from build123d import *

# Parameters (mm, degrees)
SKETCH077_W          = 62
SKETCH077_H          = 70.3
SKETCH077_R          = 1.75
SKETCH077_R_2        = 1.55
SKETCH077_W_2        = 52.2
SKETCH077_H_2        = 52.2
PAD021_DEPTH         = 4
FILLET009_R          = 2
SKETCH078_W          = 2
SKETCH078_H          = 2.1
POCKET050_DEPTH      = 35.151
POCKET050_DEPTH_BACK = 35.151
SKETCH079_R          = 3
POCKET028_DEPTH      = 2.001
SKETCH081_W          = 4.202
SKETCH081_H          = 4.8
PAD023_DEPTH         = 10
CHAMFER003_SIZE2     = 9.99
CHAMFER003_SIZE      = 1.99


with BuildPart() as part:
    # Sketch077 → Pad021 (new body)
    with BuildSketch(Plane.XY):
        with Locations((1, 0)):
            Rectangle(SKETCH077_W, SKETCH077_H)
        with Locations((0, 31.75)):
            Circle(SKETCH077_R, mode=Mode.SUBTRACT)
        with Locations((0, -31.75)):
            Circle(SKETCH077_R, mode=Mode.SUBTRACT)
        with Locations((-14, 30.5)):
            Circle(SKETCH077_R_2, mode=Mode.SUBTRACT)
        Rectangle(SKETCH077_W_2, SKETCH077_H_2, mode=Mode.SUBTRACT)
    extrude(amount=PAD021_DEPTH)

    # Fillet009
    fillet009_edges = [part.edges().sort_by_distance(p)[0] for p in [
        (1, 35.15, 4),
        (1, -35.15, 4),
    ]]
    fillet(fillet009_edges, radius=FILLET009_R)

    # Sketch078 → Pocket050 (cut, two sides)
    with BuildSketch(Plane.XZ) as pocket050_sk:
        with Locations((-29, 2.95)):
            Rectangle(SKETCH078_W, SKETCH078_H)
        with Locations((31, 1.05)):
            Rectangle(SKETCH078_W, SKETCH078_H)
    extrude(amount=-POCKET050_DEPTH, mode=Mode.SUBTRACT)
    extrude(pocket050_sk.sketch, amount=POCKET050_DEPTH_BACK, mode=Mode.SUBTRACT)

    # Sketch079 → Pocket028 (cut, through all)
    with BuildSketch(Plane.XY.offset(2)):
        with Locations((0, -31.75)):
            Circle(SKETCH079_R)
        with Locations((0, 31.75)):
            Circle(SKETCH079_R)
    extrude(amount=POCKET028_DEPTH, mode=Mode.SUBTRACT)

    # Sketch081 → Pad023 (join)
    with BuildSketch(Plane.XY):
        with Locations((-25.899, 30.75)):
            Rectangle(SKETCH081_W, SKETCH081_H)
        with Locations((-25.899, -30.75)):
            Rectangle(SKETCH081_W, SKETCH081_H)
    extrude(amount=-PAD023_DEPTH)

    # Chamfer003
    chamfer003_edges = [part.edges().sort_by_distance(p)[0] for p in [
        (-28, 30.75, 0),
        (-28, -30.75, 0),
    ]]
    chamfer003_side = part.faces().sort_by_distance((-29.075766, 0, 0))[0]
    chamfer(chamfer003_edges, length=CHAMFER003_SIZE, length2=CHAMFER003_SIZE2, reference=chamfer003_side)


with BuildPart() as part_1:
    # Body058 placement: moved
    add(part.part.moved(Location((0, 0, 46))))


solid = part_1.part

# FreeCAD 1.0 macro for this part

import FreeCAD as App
import Part
import Sketcher
Q = App.Units.Quantity


def edges_at(feature, points):
    """Names of the edges that pass closest to the given points."""
    edges = feature.Shape.Edges
    near = lambda p: min(range(len(edges)), key=lambda i: edges[i].distToShape(Part.Vertex(*p))[0])
    return sorted({f"Edge{near(p) + 1}" for p in points})


def add_polygon(sketch, points):
    """Adds a closed chain of lines whose ends are joined by coincident constraints."""
    first, n = sketch.GeometryCount, len(points)
    for a, b in zip(points, points[1:] + points[:1]):
        sketch.addGeometry(Part.LineSegment(App.Vector(*a, 0), App.Vector(*b, 0)), False)
    for i in range(n):
        sketch.addConstraint(Sketcher.Constraint("Coincident", first + i, 2, first + (i + 1) % n, 1))

doc = App.newDocument("Part")
body = doc.addObject("PartDesign::Body", "Body")

# Sketch on XY plane
sketch1 = body.newObject("Sketcher::SketchObject", "Sketch")
sketch1.AttachmentSupport = (doc.getObject("XY_Plane"), [""])
sketch1.MapMode = "FlatFace"
add_polygon(sketch1, [(-30, 35.1), (-30, -35.1), (32, -35.1), (32, 35.1)])  # lines 0-3
sketch1.addGeometry(Part.Circle(App.Vector(0, -31.8, 0), App.Vector(0, 0, 1), 1.8), False)  # 4
sketch1.addGeometry(Part.Circle(App.Vector(-14, 30.5, 0), App.Vector(0, 0, 1), 1.6), False)  # 5
add_polygon(sketch1, [(26.1, -26.1), (-26.1, -26.1), (-26.1, 26.1), (26.1, 26.1)])  # lines 6-9
sketch1.addGeometry(Part.Circle(App.Vector(0, 31.8, 0), App.Vector(0, 0, 1), 1.8), False)  # 10
sketch1.addConstraint(Sketcher.Constraint("Vertical", 0))
sketch1.addConstraint(Sketcher.Constraint("Horizontal", 1))
sketch1.addConstraint(Sketcher.Constraint("Vertical", 2))
sketch1.addConstraint(Sketcher.Constraint("Horizontal", 3))
sketch1.addConstraint(Sketcher.Constraint("Horizontal", 6))
sketch1.addConstraint(Sketcher.Constraint("Vertical", 7))
sketch1.addConstraint(Sketcher.Constraint("Horizontal", 8))
sketch1.addConstraint(Sketcher.Constraint("Vertical", 9))
sketch1.addConstraint(Sketcher.Constraint("Equal", 4, 10))
sketch1.addConstraint(Sketcher.Constraint("Symmetric", 4, 3, 10, 3, -1, 1))
sketch1.addConstraint(Sketcher.Constraint("Symmetric", 6, 2, 8, 2, -1, 1))
sketch1.addConstraint(Sketcher.Constraint("PointOnObject", 4, 3, -2))
sketch1.addConstraint(Sketcher.Constraint("Equal", 8, 7))
sketch1.addConstraint(Sketcher.Constraint("Diameter", 4, Q("3.5 mm")))
sketch1.addConstraint(Sketcher.Constraint("Diameter", 5, Q("3.1 mm")))
sketch1.addConstraint(Sketcher.Constraint("DistanceX", 1, 1, 1, 2, Q("62 mm")))
sketch1.addConstraint(Sketcher.Constraint("DistanceX", 6, 2, 6, 1, Q("52.2 mm")))
sketch1.addConstraint(Sketcher.Constraint("DistanceY", 0, 2, 0, 1, Q("70.3 mm")))
sketch1.addConstraint(Sketcher.Constraint("DistanceX", 5, 3, -1, 1, Q("14 mm")))
sketch1.addConstraint(Sketcher.Constraint("DistanceX", 0, 2, -1, 1, Q("30 mm")))
sketch1.addConstraint(Sketcher.Constraint("DistanceY", -1, 1, 5, 3, Q("30.5 mm")))
sketch1.addConstraint(Sketcher.Constraint("DistanceY", 4, 3, 10, 3, Q("63.5 mm")))
sketch1.addConstraint(Sketcher.Constraint("DistanceY", 0, 2, 4, 3, Q("3.4 mm")))
pad1 = body.newObject("PartDesign::Pad", "Pad")
pad1.Profile = sketch1
pad1.Length = 4
doc.recompute()

fillet = body.newObject("PartDesign::Fillet", "Fillet")
fillet.Base = (pad1, edges_at(pad1, [(1, 35.15, 4), (1, -35.15, 4)]))
fillet.Radius = 2

# Sketch on XZ plane
sketch2 = body.newObject("Sketcher::SketchObject", "Sketch001")
sketch2.AttachmentSupport = (doc.getObject("XZ_Plane"), [""])
sketch2.MapMode = "FlatFace"
add_polygon(sketch2, [(-30, 4), (-30, 1.9), (-28, 1.9), (-28, 4)])  # lines 0-3
add_polygon(sketch2, [(30, 2.1), (30, 0), (32, 0), (32, 2.1)])  # lines 4-7
sketch2.addConstraint(Sketcher.Constraint("Vertical", 0))
sketch2.addConstraint(Sketcher.Constraint("Horizontal", 1))
sketch2.addConstraint(Sketcher.Constraint("Vertical", 2))
sketch2.addConstraint(Sketcher.Constraint("Horizontal", 3))
sketch2.addConstraint(Sketcher.Constraint("Vertical", 4))
sketch2.addConstraint(Sketcher.Constraint("Horizontal", 5))
sketch2.addConstraint(Sketcher.Constraint("Vertical", 6))
sketch2.addConstraint(Sketcher.Constraint("Horizontal", 7))
sketch2.addConstraint(Sketcher.Constraint("PointOnObject", 4, 2, -1))
sketch2.addConstraint(Sketcher.Constraint("Equal", 3, 5))
sketch2.addConstraint(Sketcher.Constraint("Equal", 2, 4))
sketch2.addConstraint(Sketcher.Constraint("DistanceX", 1, 1, 1, 2, Q("2 mm")))
sketch2.addConstraint(Sketcher.Constraint("DistanceY", 0, 2, 0, 1, Q("2.1 mm")))
sketch2.addConstraint(Sketcher.Constraint("DistanceX", 0, 2, -1, 1, Q("30 mm")))
sketch2.addConstraint(Sketcher.Constraint("DistanceY", -1, 1, 2, 2, Q("4 mm")))
sketch2.addConstraint(Sketcher.Constraint("DistanceX", -1, 1, 4, 2, Q("30 mm")))
pocket1 = body.newObject("PartDesign::Pocket", "Pocket")
pocket1.Profile = sketch2
pocket1.Type = "ThroughAll"
pocket1.Midplane = True

# Sketch on XY plane
sketch3 = body.newObject("Sketcher::SketchObject", "Sketch002")
sketch3.AttachmentSupport = (doc.getObject("XY_Plane"), [""])
sketch3.MapMode = "FlatFace"
sketch3.AttachmentOffset = App.Placement(App.Vector(0, 0, 2), App.Rotation())
sketch3.addGeometry(Part.Circle(App.Vector(0, -31.8, 0), App.Vector(0, 0, 1), 3), False)
sketch3.addGeometry(Part.Circle(App.Vector(0, 31.8, 0), App.Vector(0, 0, 1), 3), False)
sketch3.addConstraint(Sketcher.Constraint("Equal", 0, 1))
sketch3.addConstraint(Sketcher.Constraint("Symmetric", 0, 3, 1, 3, -1, 1))
sketch3.addConstraint(Sketcher.Constraint("PointOnObject", 0, 3, -2))
sketch3.addConstraint(Sketcher.Constraint("Diameter", 0, Q("6 mm")))
sketch3.addConstraint(Sketcher.Constraint("DistanceY", 0, 3, 1, 3, Q("63.5 mm")))
pocket2 = body.newObject("PartDesign::Pocket", "Pocket001")
pocket2.Profile = sketch3
pocket2.Type = "ThroughAll"
pocket2.Reversed = True

# Sketch on XY plane
sketch4 = body.newObject("Sketcher::SketchObject", "Sketch003")
sketch4.AttachmentSupport = (doc.getObject("XY_Plane"), [""])
sketch4.MapMode = "FlatFace"
add_polygon(sketch4, [(-28, 33.1), (-28, 28.4), (-23.8, 28.4), (-23.8, 33.1)])  # lines 0-3
add_polygon(sketch4, [(-28, -28.4), (-28, -33.1), (-23.8, -33.1), (-23.8, -28.4)])  # lines 4-7
sketch4.addConstraint(Sketcher.Constraint("Vertical", 0))
sketch4.addConstraint(Sketcher.Constraint("Horizontal", 1))
sketch4.addConstraint(Sketcher.Constraint("Vertical", 2))
sketch4.addConstraint(Sketcher.Constraint("Horizontal", 3))
sketch4.addConstraint(Sketcher.Constraint("Vertical", 4))
sketch4.addConstraint(Sketcher.Constraint("Horizontal", 5))
sketch4.addConstraint(Sketcher.Constraint("Vertical", 6))
sketch4.addConstraint(Sketcher.Constraint("Horizontal", 7))
sketch4.addConstraint(Sketcher.Constraint("Symmetric", 3, 2, 4, 2, -1))
sketch4.addConstraint(Sketcher.Constraint("Symmetric", 1, 2, 6, 2, -1))
sketch4.addConstraint(Sketcher.Constraint("DistanceY", 0, 2, 0, 1, Q("4.8 mm")))
sketch4.addConstraint(Sketcher.Constraint("DistanceX", 0, 2, -1, 1, Q("28 mm")))
sketch4.addConstraint(Sketcher.Constraint("DistanceY", 4, 2, 0, 2, Q("61.5 mm")))
sketch4.addConstraint(Sketcher.Constraint("DistanceX", 1, 1, 1, 2, Q("4.202 mm")))
pad2 = body.newObject("PartDesign::Pad", "Pad001")
pad2.Profile = sketch4
pad2.Length = 10
pad2.Reversed = True
doc.recompute()

chamfer = body.newObject("PartDesign::Chamfer", "Chamfer")
chamfer.Base = (pad2, edges_at(pad2, [(-28, 30.75, 0), (-28, -30.75, 0)]))
chamfer.ChamferType = "Two distances"
chamfer.Size = 1.99
chamfer.Size2 = 9.99
body2 = doc.addObject("PartDesign::Body", "Body001")
doc.recompute()

body.Placement = App.Placement(App.Vector(0, 0, 46), App.Rotation(App.Vector(0, 0, 1), 0))
boolean = body2.newObject("PartDesign::Boolean", "Boolean")
boolean.Type = "Fuse"
boolean.addObjects([body])

doc.recompute()
